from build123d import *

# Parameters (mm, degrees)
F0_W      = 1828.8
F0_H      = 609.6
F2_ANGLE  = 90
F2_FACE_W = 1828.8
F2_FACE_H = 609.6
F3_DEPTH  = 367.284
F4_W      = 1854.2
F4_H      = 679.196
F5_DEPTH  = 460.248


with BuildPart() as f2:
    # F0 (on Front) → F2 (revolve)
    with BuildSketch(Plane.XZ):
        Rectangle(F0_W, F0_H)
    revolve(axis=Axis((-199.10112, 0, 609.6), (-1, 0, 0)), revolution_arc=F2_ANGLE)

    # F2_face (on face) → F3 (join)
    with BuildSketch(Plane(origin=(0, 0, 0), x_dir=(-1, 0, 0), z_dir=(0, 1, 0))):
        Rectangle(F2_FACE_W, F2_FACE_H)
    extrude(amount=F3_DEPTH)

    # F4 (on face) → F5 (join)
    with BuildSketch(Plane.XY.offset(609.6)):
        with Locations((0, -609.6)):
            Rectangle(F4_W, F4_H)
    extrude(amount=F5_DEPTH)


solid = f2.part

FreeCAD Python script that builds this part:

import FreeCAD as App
import Part
import Sketcher

V = App.Vector
Q = App.Units.Quantity

doc = App.newDocument("Part")
body = doc.addObject("PartDesign::Body", "Body")

sketch1 = doc.addObject("Sketcher::SketchObject", "Sketch")
body.addObject(sketch1)
sketch1.AttachmentSupport = (doc.XZ_Plane, [""])
sketch1.MapMode = "FlatFace"
sketch1.addGeometry([
    Part.LineSegment(V(-914, 305, 0), V(-914, -305, 0)),
    Part.LineSegment(V(-914, -305, 0), V(914, -305, 0)),
    Part.LineSegment(V(914, -305, 0), V(914, 305, 0)),
    Part.LineSegment(V(914, 305, 0), V(-914, 305, 0)),
], False)
sketch1.addGeometry(Part.LineSegment(V(914, 610, 0), V(-914, 610, 0)), True)
sketch1.addConstraint([
    Sketcher.Constraint("Coincident", 0, 2, 1, 1),
    Sketcher.Constraint("Coincident", 1, 2, 2, 1),
    Sketcher.Constraint("Coincident", 2, 2, 3, 1),
    Sketcher.Constraint("Coincident", 3, 2, 0, 1),
    Sketcher.Constraint("Vertical", 0),
    Sketcher.Constraint("Horizontal", 1),
    Sketcher.Constraint("Vertical", 2),
    Sketcher.Constraint("Horizontal", 3),
    Sketcher.Constraint("Horizontal", 4),
    Sketcher.Constraint("Symmetric", 0, 2, 2, 2, -1, 1),
    Sketcher.Constraint("Vertical", 2, 2, 4, 1),
    Sketcher.Constraint("Vertical", 3, 2, 4, 2),
    Sketcher.Constraint("DistanceX", 1, 1, 1, 2, Q("72 in")),
    Sketcher.Constraint("DistanceY", 0, 2, 0, 1, Q("24 in")),
    Sketcher.Constraint("DistanceY", -1, 1, 4, 1, Q("24 in")),
])
revolution = doc.addObject("PartDesign::Revolution", "Revolution")
body.addObject(revolution)
revolution.Profile = sketch1
revolution.ReferenceAxis = (sketch1, ["Axis0"])
revolution.Angle = 90

sketch2 = doc.addObject("Sketcher::SketchObject", "Sketch001")
body.addObject(sketch2)
sketch2.AttachmentSupport = (doc.XZ_Plane, [""])
sketch2.MapMode = "FlatFace"
sketch2.addGeometry([
    Part.LineSegment(V(914, 305, 0), V(914, -305, 0)),
    Part.LineSegment(V(914, -305, 0), V(-914, -305, 0)),
    Part.LineSegment(V(-914, -305, 0), V(-914, 305, 0)),
    Part.LineSegment(V(-914, 305, 0), V(914, 305, 0)),
], False)
sketch2.addConstraint([
    Sketcher.Constraint("Coincident", 0, 2, 1, 1),
    Sketcher.Constraint("Coincident", 1, 2, 2, 1),
    Sketcher.Constraint("Coincident", 2, 2, 3, 1),
    Sketcher.Constraint("Coincident", 3, 2, 0, 1),
    Sketcher.Constraint("Vertical", 0),
    Sketcher.Constraint("Horizontal", 1),
    Sketcher.Constraint("Vertical", 2),
    Sketcher.Constraint("Horizontal", 3),
    Sketcher.Constraint("Symmetric", 0, 2, 2, 2, -1, 1),
    Sketcher.Constraint("DistanceX", 1, 2, 1, 1, Q("72 in")),
    Sketcher.Constraint("DistanceY", 0, 2, 0, 1, Q("24 in")),
])
pad1 = doc.addObject("PartDesign::Pad", "Pad")
body.addObject(pad1)
pad1.Profile = sketch2
pad1.Length = Q("14.46 in")
pad1.Reversed = True

sketch3 = doc.addObject("Sketcher::SketchObject", "Sketch002")
body.addObject(sketch3)
sketch3.AttachmentSupport = (doc.XY_Plane, [""])
sketch3.MapMode = "FlatFace"
sketch3.AttachmentOffset = App.Placement(V(0, 0, 24 * 25.4), App.Rotation())
sketch3.addGeometry([
    Part.LineSegment(V(-927, -270, 0), V(-927, -949, 0)),
    Part.LineSegment(V(-927, -949, 0), V(927, -949, 0)),
    Part.LineSegment(V(927, -949, 0), V(927, -270, 0)),
    Part.LineSegment(V(927, -270, 0), V(-927, -270, 0)),
], False)
sketch3.addConstraint([
    Sketcher.Constraint("Coincident", 0, 2, 1, 1),
    Sketcher.Constraint("Coincident", 1, 2, 2, 1),
    Sketcher.Constraint("Coincident", 2, 2, 3, 1),
    Sketcher.Constraint("Coincident", 3, 2, 0, 1),
    Sketcher.Constraint("Vertical", 0),
    Sketcher.Constraint("Horizontal", 1),
    Sketcher.Constraint("Vertical", 2),
    Sketcher.Constraint("Horizontal", 3),
    Sketcher.Constraint("DistanceX", 1, 1, 1, 2, Q("73 in")),
    Sketcher.Constraint("DistanceY", 0, 2, 0, 1, Q("26.74 in")),
    Sketcher.Constraint("DistanceX", 0, 2, -1, 1, Q("36.5 in")),
    Sketcher.Constraint("DistanceY", 0, 2, -1, 1, Q("37.37 in")),
])
pad2 = doc.addObject("PartDesign::Pad", "Pad001")
body.addObject(pad2)
pad2.Profile = sketch3
pad2.Length = Q("18.12 in")

doc.recompute()
